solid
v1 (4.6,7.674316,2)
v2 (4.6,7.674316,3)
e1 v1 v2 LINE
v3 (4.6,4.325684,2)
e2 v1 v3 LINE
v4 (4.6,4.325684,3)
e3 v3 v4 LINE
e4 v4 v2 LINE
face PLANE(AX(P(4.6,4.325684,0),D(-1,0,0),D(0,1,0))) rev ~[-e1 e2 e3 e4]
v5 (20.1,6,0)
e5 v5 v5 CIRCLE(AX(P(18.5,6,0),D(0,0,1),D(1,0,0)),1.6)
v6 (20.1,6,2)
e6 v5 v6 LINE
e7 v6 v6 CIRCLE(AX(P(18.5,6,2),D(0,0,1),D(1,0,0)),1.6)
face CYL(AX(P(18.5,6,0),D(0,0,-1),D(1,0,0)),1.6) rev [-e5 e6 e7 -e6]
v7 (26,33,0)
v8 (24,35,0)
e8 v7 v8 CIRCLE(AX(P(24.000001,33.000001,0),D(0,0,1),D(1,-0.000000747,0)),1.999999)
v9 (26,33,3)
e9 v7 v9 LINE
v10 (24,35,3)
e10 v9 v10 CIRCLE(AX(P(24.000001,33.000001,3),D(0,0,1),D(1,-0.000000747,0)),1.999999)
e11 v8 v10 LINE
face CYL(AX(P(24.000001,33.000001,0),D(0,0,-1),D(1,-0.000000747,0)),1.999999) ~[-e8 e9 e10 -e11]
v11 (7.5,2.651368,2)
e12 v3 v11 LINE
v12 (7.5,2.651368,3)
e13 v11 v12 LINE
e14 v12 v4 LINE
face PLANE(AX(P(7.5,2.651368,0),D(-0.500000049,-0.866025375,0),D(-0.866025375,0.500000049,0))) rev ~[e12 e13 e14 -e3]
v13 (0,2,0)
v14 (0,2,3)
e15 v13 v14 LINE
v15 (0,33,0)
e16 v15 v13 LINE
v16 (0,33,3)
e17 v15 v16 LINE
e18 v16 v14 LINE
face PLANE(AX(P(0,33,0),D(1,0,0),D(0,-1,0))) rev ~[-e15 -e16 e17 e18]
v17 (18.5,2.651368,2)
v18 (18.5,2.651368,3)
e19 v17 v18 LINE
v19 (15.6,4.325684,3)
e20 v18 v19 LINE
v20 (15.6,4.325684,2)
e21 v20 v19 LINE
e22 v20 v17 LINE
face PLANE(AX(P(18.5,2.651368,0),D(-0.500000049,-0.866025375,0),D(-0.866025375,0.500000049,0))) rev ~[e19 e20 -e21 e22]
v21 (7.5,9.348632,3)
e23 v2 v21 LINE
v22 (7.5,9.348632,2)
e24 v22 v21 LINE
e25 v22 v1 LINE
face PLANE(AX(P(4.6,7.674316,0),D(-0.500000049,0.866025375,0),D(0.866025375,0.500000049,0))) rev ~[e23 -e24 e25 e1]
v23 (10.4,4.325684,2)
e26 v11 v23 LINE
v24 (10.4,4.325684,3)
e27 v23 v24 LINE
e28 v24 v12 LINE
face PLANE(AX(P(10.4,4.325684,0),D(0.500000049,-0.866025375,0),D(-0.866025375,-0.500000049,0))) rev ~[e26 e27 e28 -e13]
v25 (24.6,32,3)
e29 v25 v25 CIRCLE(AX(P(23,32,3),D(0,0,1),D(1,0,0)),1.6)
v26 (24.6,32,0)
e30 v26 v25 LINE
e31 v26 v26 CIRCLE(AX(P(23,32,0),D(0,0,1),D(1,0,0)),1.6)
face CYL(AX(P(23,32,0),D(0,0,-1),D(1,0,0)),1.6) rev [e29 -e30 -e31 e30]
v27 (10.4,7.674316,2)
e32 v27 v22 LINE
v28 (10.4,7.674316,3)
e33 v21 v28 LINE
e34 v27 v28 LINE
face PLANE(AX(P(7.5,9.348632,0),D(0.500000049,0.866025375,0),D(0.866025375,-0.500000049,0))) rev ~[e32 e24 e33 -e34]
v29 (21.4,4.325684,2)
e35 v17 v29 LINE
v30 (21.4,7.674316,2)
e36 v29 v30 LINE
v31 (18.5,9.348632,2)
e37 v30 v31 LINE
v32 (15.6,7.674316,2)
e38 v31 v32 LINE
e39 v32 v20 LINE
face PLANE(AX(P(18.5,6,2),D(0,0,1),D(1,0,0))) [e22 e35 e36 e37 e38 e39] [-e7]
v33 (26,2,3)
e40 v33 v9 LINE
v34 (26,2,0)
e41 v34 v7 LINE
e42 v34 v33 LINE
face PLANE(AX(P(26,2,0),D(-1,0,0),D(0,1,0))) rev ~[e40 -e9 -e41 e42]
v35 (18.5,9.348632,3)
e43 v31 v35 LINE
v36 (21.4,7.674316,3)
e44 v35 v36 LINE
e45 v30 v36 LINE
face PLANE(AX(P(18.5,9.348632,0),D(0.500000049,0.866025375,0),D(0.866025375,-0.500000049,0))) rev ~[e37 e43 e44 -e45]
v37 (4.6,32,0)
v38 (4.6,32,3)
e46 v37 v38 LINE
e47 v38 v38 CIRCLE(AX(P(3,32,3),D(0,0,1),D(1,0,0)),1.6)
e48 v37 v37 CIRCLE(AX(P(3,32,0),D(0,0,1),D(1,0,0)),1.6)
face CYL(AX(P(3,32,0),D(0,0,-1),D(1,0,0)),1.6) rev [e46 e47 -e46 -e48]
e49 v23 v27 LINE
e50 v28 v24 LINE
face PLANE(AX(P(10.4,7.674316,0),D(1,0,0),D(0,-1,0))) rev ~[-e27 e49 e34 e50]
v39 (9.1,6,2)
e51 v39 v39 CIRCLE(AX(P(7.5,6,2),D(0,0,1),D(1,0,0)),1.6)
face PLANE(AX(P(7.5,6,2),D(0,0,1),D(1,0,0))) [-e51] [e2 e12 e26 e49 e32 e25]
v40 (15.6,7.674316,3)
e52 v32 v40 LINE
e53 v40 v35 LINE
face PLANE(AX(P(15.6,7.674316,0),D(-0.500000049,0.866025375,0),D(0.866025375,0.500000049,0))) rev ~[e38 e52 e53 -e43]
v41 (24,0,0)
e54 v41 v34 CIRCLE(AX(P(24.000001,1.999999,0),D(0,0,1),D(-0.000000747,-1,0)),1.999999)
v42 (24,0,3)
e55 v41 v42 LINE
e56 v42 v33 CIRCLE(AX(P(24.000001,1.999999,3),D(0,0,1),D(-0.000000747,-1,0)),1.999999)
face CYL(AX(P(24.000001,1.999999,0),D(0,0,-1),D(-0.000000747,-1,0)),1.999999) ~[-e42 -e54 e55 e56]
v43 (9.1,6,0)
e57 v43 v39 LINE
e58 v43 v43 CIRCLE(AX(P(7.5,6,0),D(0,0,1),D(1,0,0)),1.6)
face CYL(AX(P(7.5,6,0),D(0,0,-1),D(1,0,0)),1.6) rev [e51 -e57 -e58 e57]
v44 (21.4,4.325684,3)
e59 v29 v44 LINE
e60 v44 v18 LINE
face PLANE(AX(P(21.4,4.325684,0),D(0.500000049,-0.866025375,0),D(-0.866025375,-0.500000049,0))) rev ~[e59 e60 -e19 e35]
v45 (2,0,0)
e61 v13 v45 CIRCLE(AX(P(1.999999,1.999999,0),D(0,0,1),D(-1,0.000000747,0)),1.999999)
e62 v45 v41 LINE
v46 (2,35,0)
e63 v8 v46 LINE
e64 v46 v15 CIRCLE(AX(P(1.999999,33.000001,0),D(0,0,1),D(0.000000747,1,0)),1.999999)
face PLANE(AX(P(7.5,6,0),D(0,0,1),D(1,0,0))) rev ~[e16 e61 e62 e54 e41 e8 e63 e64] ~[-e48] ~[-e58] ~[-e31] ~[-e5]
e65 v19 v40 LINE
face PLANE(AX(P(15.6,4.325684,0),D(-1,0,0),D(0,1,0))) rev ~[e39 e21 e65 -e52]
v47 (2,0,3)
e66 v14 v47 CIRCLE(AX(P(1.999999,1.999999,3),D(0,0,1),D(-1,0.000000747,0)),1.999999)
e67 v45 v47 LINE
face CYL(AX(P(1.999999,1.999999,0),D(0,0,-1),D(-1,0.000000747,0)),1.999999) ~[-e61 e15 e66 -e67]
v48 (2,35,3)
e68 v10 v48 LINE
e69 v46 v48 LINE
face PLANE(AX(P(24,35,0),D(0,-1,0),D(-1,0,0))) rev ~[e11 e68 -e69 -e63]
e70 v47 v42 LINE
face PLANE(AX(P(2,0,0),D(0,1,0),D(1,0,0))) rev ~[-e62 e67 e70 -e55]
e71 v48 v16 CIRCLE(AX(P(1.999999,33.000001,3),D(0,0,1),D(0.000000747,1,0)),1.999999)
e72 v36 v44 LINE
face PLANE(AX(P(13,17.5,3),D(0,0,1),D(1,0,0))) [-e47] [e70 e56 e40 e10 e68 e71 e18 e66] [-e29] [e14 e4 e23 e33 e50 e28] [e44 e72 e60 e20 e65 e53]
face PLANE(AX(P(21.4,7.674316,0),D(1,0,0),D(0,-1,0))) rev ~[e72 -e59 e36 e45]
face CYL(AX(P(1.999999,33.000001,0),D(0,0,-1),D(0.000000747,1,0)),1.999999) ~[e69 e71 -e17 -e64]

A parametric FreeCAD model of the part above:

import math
import FreeCAD as App
import Part
import Sketcher

V = App.Vector
Q = App.Units.Quantity


def add_polygon(sketch, points):
    """Adds a closed chain of lines whose ends are joined by coincident constraints."""
    first, n = sketch.GeometryCount, len(points)
    for a, b in zip(points, points[1:] + points[:1]):
        sketch.addGeometry(Part.LineSegment(App.Vector(*a, 0), App.Vector(*b, 0)), False)
    for i in range(n):
        sketch.addConstraint(Sketcher.Constraint("Coincident", first + i, 2, first + (i + 1) % n, 1))

doc = App.newDocument("Part")
body = doc.addObject("PartDesign::Body", "Body")

sketch1 = body.newObject("Sketcher::SketchObject", "Sketch")
sketch1.AttachmentSupport = (doc.getObject("XY_Plane"), [""])
sketch1.MapMode = "FlatFace"
sketch1.addGeometry(Part.ArcOfCircle(Part.Circle(V(2, 2, 0), V(0, 0, 1), 2), math.radians(180), math.radians(270)), False)
sketch1.addGeometry(Part.LineSegment(V(2, 0, 0), V(24, 0, 0)), False)
sketch1.addGeometry(Part.ArcOfCircle(Part.Circle(V(24, 2, 0), V(0, 0, 1), 2), math.radians(-90), math.radians(0)), False)
sketch1.addGeometry(Part.LineSegment(V(26, 2, 0), V(26, 33, 0)), False)
sketch1.addGeometry(Part.ArcOfCircle(Part.Circle(V(24, 33, 0), V(0, 0, 1), 2), math.radians(0), math.radians(90)), False)
sketch1.addGeometry(Part.LineSegment(V(24, 35, 0), V(2, 35, 0)), False)
sketch1.addGeometry(Part.ArcOfCircle(Part.Circle(V(2, 33, 0), V(0, 0, 1), 2), math.radians(90), math.radians(180)), False)
sketch1.addGeometry(Part.LineSegment(V(0, 33, 0), V(0, 2, 0)), False)
add_polygon(sketch1, [(10.4, 4.3), (7.5, 2.7), (4.6, 4.3), (4.6, 7.7), (7.5, 9.3), (10.4, 7.7)])
add_polygon(sketch1, [(21.4, 4.3), (18.5, 2.7), (15.6, 4.3), (15.6, 7.7), (18.5, 9.3), (21.4, 7.7)])
sketch1.addGeometry(Part.Circle(V(3, 32, 0), V(0, 0, 1), 1.6), False)
sketch1.addGeometry(Part.Circle(V(23, 32, 0), V(0, 0, 1), 1.6), False)
sketch1.addConstraint([
    Sketcher.Constraint("Tangent", 0, 2, 1, 1),
    Sketcher.Constraint("Tangent", 1, 2, 2, 1),
    Sketcher.Constraint("Tangent", 2, 2, 3, 1),
    Sketcher.Constraint("Tangent", 3, 2, 4, 1),
    Sketcher.Constraint("Tangent", 4, 2, 5, 1),
    Sketcher.Constraint("Tangent", 5, 2, 6, 1),
    Sketcher.Constraint("Tangent", 6, 2, 7, 1),
    Sketcher.Constraint("Tangent", 7, 2, 0, 1),
    Sketcher.Constraint("Horizontal", 1),
    Sketcher.Constraint("Vertical", 3),
    Sketcher.Constraint("Horizontal", 5),
    Sketcher.Constraint("Vertical", 7),
    Sketcher.Constraint("Vertical", 10),
    Sketcher.Constraint("Vertical", 13),
    Sketcher.Constraint("Vertical", 16),
    Sketcher.Constraint("Vertical", 19),
    Sketcher.Constraint("Equal", 0, 2),
    Sketcher.Constraint("Equal", 2, 4),
    Sketcher.Constraint("Equal", 4, 6),
    Sketcher.Constraint("Equal", 20, 21),
    Sketcher.Constraint("PointOnObject", 0, 2, -1),
    Sketcher.Constraint("PointOnObject", 6, 2, -2),
    Sketcher.Constraint("Parallel", 8, 11),
    Sketcher.Constraint("Parallel", 9, 12),
    Sketcher.Constraint("Parallel", 11, 14),
    Sketcher.Constraint("Parallel", 12, 15),
    Sketcher.Constraint("Parallel", 14, 17),
    Sketcher.Constraint("Parallel", 15, 18),
    Sketcher.Constraint("Horizontal", 20, 3, 21, 3),
    Sketcher.Constraint("Horizontal", 10, 2, 12, 2),
    Sketcher.Constraint("Horizontal", 9, 2, 13, 2),
    Sketcher.Constraint("Horizontal", 8, 2, 14, 2),
    Sketcher.Constraint("Horizontal", 13, 2, 15, 2),
    Sketcher.Constraint("Horizontal", 12, 2, 16, 2),
    Sketcher.Constraint("Horizontal", 11, 2, 17, 2),
    Sketcher.Constraint("Horizontal", 16, 2, 18, 2),
    Sketcher.Constraint("Vertical", 8, 2, 11, 2),
    Sketcher.Constraint("Radius", 0, 1.999999),
    Sketcher.Constraint("Diameter", 20, 3.2),
    Sketcher.Constraint("DistanceX", 1, 1, 1, 2, 22.0),
    Sketcher.Constraint("DistanceY", 3, 1, 3, 2, 31.0),
    Sketcher.Constraint("Angle", 8, Q("-149.999997 deg")),
    Sketcher.Constraint("DistanceX", -1, 1, 20, 3, 3.0),
    Sketcher.Constraint("DistanceY", -1, 1, 20, 3, 32.0),
    Sketcher.Constraint("DistanceX", -1, 1, 21, 3, 23.0),
    Sketcher.Constraint("DistanceX", -1, 1, 8, 2, 7.5),
    Sketcher.Constraint("DistanceX", -1, 1, 9, 2, 4.6),
    Sketcher.Constraint("DistanceX", -1, 1, 14, 2, 18.5),
    Sketcher.Constraint("DistanceY", 10, 1, 10, 2, 3.348632),
    Sketcher.Constraint("DistanceY", -1, 1, 8, 2, 2.651368),
])
pad1 = body.newObject("PartDesign::Pad", "Pad")
pad1.Profile = sketch1
pad1.Length = 3

sketch2 = body.newObject("Sketcher::SketchObject", "Sketch001")
sketch2.AttachmentSupport = (doc.getObject("XY_Plane"), [""])
sketch2.MapMode = "FlatFace"
add_polygon(sketch2, [(4.6, 7.7), (4.6, 4.3), (7.5, 2.7), (10.4, 4.3), (10.4, 7.7), (7.5, 9.3)])
sketch2.addGeometry(Part.Circle(V(7.5, 6, 0), V(0, 0, 1), 1.6), False)
add_polygon(sketch2, [(15.6, 7.7), (15.6, 4.3), (18.5, 2.7), (21.4, 4.3), (21.4, 7.7), (18.5, 9.3)])
sketch2.addGeometry(Part.Circle(V(18.5, 6, 0), V(0, 0, 1), 1.6), False)
sketch2.addConstraint([
    Sketcher.Constraint("Vertical", 0),
    Sketcher.Constraint("Vertical", 3),
    Sketcher.Constraint("Vertical", 7),
    Sketcher.Constraint("Vertical", 10),
    Sketcher.Constraint("Equal", 6, 13),
    Sketcher.Constraint("Parallel", 1, 4),
    Sketcher.Constraint("Parallel", 2, 5),
    Sketcher.Constraint("Parallel", 4, 8),
    Sketcher.Constraint("Parallel", 5, 9),
    Sketcher.Constraint("Parallel", 8, 11),
    Sketcher.Constraint("Parallel", 9, 12),
    Sketcher.Constraint("Horizontal", 6, 3, 13, 3),
    Sketcher.Constraint("Horizontal", 0, 2, 2, 2),
    Sketcher.Constraint("Horizontal", 3, 2, 5, 2),
    Sketcher.Constraint("Horizontal", 2, 2, 7, 2),
    Sketcher.Constraint("Horizontal", 1, 2, 8, 2),
    Sketcher.Constraint("Horizontal", 7, 2, 9, 2),
    Sketcher.Constraint("Horizontal", 5, 2, 10, 2),
    Sketcher.Constraint("Horizontal", 4, 2, 11, 2),
    Sketcher.Constraint("Vertical", 6, 3, 1, 2),
    Sketcher.Constraint("Vertical", 1, 2, 4, 2),
    Sketcher.Constraint("Vertical", 13, 3, 8, 2),
    Sketcher.Constraint("Diameter", 6, 3.2),
    Sketcher.Constraint("Angle", 1, Q("-30.000003 deg")),
    Sketcher.Constraint("DistanceY", -1, 1, 6, 3, 6.0),
    Sketcher.Constraint("DistanceX", 6, 3, 13, 3, 11.0),
    Sketcher.Constraint("DistanceX", -1, 1, 6, 3, 7.5),
    Sketcher.Constraint("DistanceX", -1, 1, 0, 2, 4.6),
    Sketcher.Constraint("DistanceY", 0, 2, 0, 1, 3.348632),
    Sketcher.Constraint("DistanceY", -1, 1, 1, 2, 2.651368),
])
pad2 = body.newObject("PartDesign::Pad", "Pad001")
pad2.Profile = sketch2
pad2.Length = 2

doc.recompute()
